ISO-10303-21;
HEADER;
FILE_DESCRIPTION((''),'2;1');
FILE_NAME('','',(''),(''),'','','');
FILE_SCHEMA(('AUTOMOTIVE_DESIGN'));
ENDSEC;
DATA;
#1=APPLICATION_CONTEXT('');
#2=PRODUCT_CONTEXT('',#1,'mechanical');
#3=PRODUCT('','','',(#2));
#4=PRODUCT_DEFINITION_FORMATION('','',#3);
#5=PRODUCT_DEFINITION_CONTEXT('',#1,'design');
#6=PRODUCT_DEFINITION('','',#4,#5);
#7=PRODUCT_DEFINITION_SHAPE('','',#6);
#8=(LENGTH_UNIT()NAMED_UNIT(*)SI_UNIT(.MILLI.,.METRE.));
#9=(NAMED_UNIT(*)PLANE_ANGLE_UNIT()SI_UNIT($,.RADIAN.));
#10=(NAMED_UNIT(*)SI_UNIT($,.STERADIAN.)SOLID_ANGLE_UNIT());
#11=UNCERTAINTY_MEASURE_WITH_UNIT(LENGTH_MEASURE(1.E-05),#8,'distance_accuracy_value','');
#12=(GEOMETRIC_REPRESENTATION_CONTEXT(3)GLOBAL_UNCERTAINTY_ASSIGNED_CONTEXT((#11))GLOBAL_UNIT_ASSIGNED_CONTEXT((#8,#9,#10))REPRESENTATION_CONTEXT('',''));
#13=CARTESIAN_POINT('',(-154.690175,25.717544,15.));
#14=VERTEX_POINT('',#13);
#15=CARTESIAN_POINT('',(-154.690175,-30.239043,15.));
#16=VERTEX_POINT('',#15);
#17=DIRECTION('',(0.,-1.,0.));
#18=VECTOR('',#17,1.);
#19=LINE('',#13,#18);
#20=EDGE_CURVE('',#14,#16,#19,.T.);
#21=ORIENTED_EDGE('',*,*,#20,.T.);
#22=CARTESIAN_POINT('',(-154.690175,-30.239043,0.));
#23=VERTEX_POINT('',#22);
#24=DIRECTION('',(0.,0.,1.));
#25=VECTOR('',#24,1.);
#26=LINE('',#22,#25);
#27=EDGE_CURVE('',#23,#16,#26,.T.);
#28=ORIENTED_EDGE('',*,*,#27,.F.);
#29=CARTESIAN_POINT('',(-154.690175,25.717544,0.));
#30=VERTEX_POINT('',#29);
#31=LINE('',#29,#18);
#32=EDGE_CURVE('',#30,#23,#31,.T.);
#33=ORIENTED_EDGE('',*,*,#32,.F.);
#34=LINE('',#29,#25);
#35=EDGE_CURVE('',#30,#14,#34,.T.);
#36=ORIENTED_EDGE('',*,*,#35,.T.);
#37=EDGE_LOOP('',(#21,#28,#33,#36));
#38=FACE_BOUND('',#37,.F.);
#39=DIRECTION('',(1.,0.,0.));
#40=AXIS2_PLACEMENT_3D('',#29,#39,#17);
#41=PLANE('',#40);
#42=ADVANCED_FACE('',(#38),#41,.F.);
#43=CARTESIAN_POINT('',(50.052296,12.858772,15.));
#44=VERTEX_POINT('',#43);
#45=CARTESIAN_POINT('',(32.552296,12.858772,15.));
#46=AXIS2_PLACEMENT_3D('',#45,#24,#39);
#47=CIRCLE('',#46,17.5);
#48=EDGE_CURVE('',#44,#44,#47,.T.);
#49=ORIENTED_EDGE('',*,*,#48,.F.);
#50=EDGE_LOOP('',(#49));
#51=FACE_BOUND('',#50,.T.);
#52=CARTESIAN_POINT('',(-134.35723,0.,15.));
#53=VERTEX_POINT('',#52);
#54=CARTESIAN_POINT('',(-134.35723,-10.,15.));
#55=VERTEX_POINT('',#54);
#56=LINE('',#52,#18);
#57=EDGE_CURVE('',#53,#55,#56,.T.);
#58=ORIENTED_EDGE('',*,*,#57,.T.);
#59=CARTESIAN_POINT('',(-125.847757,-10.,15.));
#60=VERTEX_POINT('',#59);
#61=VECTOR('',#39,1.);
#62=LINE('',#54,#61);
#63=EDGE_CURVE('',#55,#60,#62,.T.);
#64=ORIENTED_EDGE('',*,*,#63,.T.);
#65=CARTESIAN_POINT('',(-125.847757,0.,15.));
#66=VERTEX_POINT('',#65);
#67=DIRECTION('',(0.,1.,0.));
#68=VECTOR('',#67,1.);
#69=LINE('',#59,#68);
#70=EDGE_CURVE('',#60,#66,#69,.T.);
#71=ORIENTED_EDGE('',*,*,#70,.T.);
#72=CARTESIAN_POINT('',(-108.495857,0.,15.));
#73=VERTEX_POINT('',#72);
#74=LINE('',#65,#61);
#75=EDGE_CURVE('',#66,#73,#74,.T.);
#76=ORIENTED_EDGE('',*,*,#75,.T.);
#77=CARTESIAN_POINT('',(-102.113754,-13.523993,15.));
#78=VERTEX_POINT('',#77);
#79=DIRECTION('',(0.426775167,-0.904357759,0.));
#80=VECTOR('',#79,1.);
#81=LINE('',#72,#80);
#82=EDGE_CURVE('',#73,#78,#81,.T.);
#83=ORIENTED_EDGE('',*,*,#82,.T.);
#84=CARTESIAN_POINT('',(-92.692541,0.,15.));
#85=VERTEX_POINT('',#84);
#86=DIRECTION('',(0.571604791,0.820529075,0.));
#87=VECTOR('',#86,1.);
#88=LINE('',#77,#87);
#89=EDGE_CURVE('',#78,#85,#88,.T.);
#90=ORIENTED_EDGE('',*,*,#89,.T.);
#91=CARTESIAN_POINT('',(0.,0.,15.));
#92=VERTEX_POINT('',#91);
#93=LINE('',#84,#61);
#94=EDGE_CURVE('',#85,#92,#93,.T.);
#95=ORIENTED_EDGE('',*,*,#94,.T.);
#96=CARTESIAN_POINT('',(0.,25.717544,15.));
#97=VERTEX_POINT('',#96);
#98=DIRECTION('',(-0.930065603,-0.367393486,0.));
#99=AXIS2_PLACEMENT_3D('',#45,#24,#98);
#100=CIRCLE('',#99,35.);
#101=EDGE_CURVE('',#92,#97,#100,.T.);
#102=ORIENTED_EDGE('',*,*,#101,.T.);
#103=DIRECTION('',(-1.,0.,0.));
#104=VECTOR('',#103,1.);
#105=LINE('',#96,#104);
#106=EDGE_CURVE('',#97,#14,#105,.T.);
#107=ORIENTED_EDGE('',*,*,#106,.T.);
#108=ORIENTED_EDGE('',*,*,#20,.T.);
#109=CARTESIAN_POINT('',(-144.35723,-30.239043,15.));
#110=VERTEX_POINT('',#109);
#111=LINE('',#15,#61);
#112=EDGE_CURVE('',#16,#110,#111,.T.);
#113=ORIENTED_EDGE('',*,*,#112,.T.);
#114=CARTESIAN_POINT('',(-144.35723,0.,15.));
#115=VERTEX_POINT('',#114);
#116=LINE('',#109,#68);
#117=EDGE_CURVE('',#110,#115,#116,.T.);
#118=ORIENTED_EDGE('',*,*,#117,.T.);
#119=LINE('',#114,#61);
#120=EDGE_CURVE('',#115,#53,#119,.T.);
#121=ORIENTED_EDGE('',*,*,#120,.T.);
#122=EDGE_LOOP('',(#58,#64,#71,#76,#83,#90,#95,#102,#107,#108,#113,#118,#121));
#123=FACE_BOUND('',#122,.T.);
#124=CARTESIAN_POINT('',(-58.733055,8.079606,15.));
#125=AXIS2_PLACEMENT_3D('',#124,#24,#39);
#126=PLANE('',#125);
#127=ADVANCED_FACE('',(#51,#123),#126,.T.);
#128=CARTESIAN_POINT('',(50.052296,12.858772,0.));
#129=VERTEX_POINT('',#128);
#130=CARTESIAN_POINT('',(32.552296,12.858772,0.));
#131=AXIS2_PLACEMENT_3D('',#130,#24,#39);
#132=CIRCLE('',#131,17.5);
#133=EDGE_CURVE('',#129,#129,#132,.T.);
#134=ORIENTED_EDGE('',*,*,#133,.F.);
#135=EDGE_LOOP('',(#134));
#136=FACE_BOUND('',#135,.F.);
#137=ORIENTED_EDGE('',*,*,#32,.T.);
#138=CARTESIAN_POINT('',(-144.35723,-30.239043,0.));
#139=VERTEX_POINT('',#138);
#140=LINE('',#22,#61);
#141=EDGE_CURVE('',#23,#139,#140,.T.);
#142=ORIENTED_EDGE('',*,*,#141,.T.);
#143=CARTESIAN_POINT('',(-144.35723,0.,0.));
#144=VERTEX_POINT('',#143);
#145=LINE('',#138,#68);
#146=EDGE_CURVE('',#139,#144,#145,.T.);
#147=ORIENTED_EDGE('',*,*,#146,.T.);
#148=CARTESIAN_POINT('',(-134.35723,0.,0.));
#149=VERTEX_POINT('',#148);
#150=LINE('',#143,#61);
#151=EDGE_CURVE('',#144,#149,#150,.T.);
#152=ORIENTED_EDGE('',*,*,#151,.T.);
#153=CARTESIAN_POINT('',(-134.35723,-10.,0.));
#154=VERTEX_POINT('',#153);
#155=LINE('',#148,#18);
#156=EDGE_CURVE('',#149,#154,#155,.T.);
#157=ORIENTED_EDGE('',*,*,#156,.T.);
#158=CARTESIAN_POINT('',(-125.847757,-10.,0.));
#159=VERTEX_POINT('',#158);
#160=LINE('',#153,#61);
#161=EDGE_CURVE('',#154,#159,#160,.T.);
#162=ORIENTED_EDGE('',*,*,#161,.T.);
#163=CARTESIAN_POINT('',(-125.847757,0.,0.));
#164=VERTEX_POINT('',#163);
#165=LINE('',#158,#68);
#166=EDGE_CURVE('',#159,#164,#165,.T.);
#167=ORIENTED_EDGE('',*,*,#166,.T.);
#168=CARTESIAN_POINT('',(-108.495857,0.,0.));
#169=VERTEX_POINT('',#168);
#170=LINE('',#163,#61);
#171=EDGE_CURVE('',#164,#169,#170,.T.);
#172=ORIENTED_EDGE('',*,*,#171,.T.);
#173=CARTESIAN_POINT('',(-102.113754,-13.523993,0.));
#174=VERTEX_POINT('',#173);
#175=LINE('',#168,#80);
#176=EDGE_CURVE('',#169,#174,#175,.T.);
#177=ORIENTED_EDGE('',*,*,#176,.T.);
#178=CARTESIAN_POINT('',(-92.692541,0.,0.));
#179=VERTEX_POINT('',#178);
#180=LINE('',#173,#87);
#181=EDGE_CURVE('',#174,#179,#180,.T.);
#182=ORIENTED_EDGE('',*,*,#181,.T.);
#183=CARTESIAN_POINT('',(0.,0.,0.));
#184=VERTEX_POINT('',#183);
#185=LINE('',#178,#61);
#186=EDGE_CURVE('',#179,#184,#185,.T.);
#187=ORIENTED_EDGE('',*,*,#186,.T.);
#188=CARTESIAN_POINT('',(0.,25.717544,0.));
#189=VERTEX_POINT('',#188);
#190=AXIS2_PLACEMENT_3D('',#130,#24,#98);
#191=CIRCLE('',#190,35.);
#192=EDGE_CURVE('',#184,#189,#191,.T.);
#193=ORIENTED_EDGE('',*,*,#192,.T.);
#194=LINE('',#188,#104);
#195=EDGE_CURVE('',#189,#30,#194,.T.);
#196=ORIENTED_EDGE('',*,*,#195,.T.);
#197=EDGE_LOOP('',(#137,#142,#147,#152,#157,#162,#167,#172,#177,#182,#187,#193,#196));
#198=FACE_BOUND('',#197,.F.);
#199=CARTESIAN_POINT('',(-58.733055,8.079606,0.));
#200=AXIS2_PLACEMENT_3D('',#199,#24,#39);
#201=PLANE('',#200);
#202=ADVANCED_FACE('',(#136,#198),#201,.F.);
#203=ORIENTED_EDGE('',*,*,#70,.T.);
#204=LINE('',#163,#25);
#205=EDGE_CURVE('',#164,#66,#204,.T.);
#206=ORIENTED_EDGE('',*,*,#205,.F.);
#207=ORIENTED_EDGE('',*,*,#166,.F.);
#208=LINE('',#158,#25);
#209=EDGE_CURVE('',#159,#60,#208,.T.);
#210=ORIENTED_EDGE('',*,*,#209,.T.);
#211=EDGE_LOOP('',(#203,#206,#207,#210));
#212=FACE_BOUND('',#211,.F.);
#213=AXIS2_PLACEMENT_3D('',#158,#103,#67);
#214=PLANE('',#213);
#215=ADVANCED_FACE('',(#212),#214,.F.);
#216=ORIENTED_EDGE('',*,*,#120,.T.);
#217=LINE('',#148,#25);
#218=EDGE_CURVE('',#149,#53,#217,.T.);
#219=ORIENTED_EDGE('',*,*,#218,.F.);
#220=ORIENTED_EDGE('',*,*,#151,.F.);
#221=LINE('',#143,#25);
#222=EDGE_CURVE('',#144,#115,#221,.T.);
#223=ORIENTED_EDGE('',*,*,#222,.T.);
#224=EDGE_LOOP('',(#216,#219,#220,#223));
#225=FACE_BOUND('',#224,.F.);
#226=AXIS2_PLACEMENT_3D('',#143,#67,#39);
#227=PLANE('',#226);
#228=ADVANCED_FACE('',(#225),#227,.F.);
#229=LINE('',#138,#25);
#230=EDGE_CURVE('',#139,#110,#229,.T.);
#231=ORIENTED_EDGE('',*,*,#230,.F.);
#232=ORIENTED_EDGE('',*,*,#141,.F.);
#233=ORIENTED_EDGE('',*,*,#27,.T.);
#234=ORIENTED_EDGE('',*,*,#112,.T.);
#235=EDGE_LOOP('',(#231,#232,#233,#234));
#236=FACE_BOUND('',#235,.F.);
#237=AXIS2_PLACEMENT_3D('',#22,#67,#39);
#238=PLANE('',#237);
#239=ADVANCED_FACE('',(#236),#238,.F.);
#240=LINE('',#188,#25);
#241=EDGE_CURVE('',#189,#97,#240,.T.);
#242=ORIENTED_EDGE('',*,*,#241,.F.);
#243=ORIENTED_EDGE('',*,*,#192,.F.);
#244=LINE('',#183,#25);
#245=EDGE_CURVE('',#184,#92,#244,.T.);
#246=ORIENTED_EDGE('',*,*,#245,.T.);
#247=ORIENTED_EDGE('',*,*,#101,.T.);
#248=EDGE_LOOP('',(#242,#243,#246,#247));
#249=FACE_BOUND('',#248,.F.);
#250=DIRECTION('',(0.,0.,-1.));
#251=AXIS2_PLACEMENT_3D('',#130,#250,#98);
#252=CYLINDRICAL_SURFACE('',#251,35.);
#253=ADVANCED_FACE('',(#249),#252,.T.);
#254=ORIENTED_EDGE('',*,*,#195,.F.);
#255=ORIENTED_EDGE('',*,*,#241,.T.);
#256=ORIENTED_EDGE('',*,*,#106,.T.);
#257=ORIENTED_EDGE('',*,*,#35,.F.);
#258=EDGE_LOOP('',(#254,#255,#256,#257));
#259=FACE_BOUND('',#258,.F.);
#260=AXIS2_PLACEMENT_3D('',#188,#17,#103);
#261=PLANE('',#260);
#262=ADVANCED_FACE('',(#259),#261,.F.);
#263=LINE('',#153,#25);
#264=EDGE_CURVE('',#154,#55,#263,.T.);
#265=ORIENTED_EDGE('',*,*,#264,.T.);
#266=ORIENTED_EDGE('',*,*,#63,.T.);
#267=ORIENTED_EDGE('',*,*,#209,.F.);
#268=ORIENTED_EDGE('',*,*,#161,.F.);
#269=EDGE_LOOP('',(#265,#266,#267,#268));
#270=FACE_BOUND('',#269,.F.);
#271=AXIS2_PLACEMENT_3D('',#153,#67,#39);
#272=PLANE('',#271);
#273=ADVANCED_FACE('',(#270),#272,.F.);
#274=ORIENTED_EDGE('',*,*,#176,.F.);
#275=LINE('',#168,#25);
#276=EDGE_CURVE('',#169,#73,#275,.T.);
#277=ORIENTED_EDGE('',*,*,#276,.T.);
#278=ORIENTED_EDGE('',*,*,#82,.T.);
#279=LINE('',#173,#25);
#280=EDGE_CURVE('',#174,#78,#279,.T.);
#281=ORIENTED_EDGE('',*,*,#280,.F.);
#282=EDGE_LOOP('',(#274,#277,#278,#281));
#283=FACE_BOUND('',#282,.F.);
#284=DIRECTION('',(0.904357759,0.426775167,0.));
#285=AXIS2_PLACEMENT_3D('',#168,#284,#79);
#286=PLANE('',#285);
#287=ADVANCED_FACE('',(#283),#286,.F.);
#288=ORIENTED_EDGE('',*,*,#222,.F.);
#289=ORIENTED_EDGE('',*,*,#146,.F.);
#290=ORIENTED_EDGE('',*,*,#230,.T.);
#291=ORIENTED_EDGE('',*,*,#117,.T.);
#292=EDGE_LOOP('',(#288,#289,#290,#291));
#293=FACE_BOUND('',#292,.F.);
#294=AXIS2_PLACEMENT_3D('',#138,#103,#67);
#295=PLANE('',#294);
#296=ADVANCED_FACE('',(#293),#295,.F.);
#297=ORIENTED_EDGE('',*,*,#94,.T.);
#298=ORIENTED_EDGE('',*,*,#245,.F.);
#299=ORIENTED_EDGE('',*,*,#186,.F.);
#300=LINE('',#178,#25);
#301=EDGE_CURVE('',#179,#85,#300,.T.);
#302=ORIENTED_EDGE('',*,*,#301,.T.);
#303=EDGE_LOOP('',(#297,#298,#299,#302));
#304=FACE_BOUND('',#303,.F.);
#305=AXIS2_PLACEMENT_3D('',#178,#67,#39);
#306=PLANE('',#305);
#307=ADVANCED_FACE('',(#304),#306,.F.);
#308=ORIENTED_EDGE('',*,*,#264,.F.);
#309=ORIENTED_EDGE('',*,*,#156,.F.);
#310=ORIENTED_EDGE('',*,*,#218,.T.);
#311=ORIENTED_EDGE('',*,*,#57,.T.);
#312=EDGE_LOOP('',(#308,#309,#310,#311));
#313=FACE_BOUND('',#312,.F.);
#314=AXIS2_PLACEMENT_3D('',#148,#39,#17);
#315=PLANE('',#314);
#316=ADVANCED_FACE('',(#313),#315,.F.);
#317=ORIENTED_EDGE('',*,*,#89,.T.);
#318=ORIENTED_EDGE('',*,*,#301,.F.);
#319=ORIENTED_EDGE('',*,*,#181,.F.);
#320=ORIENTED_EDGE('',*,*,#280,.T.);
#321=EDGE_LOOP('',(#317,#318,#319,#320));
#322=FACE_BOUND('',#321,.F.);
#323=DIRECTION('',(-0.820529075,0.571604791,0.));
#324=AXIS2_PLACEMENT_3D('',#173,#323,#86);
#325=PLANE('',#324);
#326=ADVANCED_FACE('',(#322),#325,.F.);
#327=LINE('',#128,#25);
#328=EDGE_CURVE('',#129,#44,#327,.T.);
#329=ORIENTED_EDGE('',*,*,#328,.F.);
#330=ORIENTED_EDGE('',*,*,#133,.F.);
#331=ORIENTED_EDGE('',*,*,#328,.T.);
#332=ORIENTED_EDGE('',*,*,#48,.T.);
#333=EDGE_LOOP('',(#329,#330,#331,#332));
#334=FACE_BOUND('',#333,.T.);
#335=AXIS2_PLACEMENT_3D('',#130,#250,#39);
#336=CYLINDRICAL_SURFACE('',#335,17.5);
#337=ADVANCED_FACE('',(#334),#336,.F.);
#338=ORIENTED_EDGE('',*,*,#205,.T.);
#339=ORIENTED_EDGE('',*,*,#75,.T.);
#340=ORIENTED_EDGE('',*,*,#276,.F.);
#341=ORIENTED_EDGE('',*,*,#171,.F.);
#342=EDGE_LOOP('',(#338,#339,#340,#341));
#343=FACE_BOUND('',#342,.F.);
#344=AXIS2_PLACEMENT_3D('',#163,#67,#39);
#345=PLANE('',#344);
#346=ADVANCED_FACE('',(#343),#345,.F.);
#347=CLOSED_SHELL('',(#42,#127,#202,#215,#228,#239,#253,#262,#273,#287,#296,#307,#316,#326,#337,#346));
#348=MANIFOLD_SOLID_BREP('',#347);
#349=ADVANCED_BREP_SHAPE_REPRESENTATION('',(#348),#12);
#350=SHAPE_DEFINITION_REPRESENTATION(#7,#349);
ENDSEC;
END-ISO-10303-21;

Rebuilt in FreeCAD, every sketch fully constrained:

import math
import FreeCAD as App
import Part
import Sketcher
Q = App.Units.Quantity

doc = App.newDocument("Part")
body = doc.addObject("PartDesign::Body", "Body")

# Sketch on XY plane
sketch1 = body.newObject("Sketcher::SketchObject", "Sketch")
sketch1.AttachmentSupport = (doc.getObject("XY_Plane"), [""])
sketch1.MapMode = "FlatFace"
sketch1.addGeometry(Part.LineSegment(App.Vector(-92.692541, 0, 0), App.Vector(0, 0, 0)), False)
sketch1.addGeometry(Part.ArcOfCircle(Part.Circle(App.Vector(32.552296, 12.858772, 0), App.Vector(0, 0, 1), 35), math.radians(-158.445044), math.radians(158.445044)), False)
sketch1.addGeometry(Part.LineSegment(App.Vector(0, 25.717544, 0), App.Vector(-154.690175, 25.717544, 0)), False)
sketch1.addGeometry(Part.LineSegment(App.Vector(-154.690175, 25.717544, 0), App.Vector(-154.690175, -30.239043, 0)), False)
sketch1.addGeometry(Part.LineSegment(App.Vector(-154.690175, -30.239043, 0), App.Vector(-144.35723, -30.239043, 0)), False)
sketch1.addGeometry(Part.LineSegment(App.Vector(-144.35723, -30.239043, 0), App.Vector(-144.35723, 0, 0)), False)
sketch1.addGeometry(Part.LineSegment(App.Vector(-144.35723, 0, 0), App.Vector(-134.35723, 0, 0)), False)
sketch1.addGeometry(Part.LineSegment(App.Vector(-134.35723, 0, 0), App.Vector(-134.35723, -10, 0)), False)
sketch1.addGeometry(Part.LineSegment(App.Vector(-134.35723, -10, 0), App.Vector(-125.847757, -10, 0)), False)
sketch1.addGeometry(Part.LineSegment(App.Vector(-125.847757, -10, 0), App.Vector(-125.847757, 0, 0)), False)
sketch1.addGeometry(Part.LineSegment(App.Vector(-125.847757, 0, 0), App.Vector(-108.495857, 0, 0)), False)
sketch1.addGeometry(Part.LineSegment(App.Vector(-108.495857, 0, 0), App.Vector(-102.113754, -13.523993, 0)), False)
sketch1.addGeometry(Part.LineSegment(App.Vector(-102.113754, -13.523993, 0), App.Vector(-92.692541, 0, 0)), False)
sketch1.addGeometry(Part.Circle(App.Vector(32.552296, 12.858772, 0), App.Vector(0, 0, 1), 17.5), False)
sketch1.addConstraint(Sketcher.Constraint("Coincident", 0, 2, 1, 1))
sketch1.addConstraint(Sketcher.Constraint("Coincident", 1, 2, 2, 1))
sketch1.addConstraint(Sketcher.Constraint("Coincident", 2, 2, 3, 1))
sketch1.addConstraint(Sketcher.Constraint("Coincident", 3, 2, 4, 1))
sketch1.addConstraint(Sketcher.Constraint("Coincident", 4, 2, 5, 1))
sketch1.addConstraint(Sketcher.Constraint("Coincident", 5, 2, 6, 1))
sketch1.addConstraint(Sketcher.Constraint("Coincident", 6, 2, 7, 1))
sketch1.addConstraint(Sketcher.Constraint("Coincident", 7, 2, 8, 1))
sketch1.addConstraint(Sketcher.Constraint("Coincident", 8, 2, 9, 1))
sketch1.addConstraint(Sketcher.Constraint("Coincident", 9, 2, 10, 1))
sketch1.addConstraint(Sketcher.Constraint("Coincident", 10, 2, 11, 1))
sketch1.addConstraint(Sketcher.Constraint("Coincident", 11, 2, 12, 1))
sketch1.addConstraint(Sketcher.Constraint("Coincident", 12, 2, 0, 1))
sketch1.addConstraint(Sketcher.Constraint("Horizontal", 0))
sketch1.addConstraint(Sketcher.Constraint("Horizontal", 2))
sketch1.addConstraint(Sketcher.Constraint("Vertical", 3))
sketch1.addConstraint(Sketcher.Constraint("Horizontal", 4))
sketch1.addConstraint(Sketcher.Constraint("Vertical", 5))
sketch1.addConstraint(Sketcher.Constraint("Horizontal", 6))
sketch1.addConstraint(Sketcher.Constraint("Vertical", 7))
sketch1.addConstraint(Sketcher.Constraint("Horizontal", 8))
sketch1.addConstraint(Sketcher.Constraint("Vertical", 9))
sketch1.addConstraint(Sketcher.Constraint("Horizontal", 10))
sketch1.addConstraint(Sketcher.Constraint("Coincident", 0, 2, -1, 1))
sketch1.addConstraint(Sketcher.Constraint("Coincident", 13, 3, 1, 3))
sketch1.addConstraint(Sketcher.Constraint("PointOnObject", 1, 2, -2))
sketch1.addConstraint(Sketcher.Constraint("PointOnObject", 5, 2, -1))
sketch1.addConstraint(Sketcher.Constraint("PointOnObject", 9, 2, -1))
sketch1.addConstraint(Sketcher.Constraint("Equal", 6, 7))
sketch1.addConstraint(Sketcher.Constraint("Diameter", 13, Q("35 mm")))
sketch1.addConstraint(Sketcher.Constraint("Radius", 1, Q("35 mm")))
sketch1.addConstraint(Sketcher.Constraint("DistanceX", 6, 1, 6, 2, Q("10 mm")))
sketch1.addConstraint(Sketcher.Constraint("DistanceX", 10, 1, 10, 2, Q("17.3519 mm")))
sketch1.addConstraint(Sketcher.Constraint("DistanceX", 0, 1, 0, 2, Q("92.692541 mm")))
sketch1.addConstraint(Sketcher.Constraint("Distance", 11, Q("14.954251 mm")))
sketch1.addConstraint(Sketcher.Constraint("Distance", 12, Q("16.48204 mm")))
sketch1.addConstraint(Sketcher.Constraint("DistanceX", 2, 2, 2, 1, Q("154.690175 mm")))
sketch1.addConstraint(Sketcher.Constraint("DistanceX", 4, 1, 4, 2, Q("10.332945 mm")))
sketch1.addConstraint(Sketcher.Constraint("DistanceX", 8, 1, 8, 2, Q("8.509473 mm")))
sketch1.addConstraint(Sketcher.Constraint("DistanceY", 3, 2, 3, 1, Q("55.956587 mm")))
sketch1.addConstraint(Sketcher.Constraint("DistanceY", 5, 1, 5, 2, Q("30.239043 mm")))
pad1 = body.newObject("PartDesign::Pad", "Pad")
pad1.Profile = sketch1
pad1.Length = 15

doc.recompute()
